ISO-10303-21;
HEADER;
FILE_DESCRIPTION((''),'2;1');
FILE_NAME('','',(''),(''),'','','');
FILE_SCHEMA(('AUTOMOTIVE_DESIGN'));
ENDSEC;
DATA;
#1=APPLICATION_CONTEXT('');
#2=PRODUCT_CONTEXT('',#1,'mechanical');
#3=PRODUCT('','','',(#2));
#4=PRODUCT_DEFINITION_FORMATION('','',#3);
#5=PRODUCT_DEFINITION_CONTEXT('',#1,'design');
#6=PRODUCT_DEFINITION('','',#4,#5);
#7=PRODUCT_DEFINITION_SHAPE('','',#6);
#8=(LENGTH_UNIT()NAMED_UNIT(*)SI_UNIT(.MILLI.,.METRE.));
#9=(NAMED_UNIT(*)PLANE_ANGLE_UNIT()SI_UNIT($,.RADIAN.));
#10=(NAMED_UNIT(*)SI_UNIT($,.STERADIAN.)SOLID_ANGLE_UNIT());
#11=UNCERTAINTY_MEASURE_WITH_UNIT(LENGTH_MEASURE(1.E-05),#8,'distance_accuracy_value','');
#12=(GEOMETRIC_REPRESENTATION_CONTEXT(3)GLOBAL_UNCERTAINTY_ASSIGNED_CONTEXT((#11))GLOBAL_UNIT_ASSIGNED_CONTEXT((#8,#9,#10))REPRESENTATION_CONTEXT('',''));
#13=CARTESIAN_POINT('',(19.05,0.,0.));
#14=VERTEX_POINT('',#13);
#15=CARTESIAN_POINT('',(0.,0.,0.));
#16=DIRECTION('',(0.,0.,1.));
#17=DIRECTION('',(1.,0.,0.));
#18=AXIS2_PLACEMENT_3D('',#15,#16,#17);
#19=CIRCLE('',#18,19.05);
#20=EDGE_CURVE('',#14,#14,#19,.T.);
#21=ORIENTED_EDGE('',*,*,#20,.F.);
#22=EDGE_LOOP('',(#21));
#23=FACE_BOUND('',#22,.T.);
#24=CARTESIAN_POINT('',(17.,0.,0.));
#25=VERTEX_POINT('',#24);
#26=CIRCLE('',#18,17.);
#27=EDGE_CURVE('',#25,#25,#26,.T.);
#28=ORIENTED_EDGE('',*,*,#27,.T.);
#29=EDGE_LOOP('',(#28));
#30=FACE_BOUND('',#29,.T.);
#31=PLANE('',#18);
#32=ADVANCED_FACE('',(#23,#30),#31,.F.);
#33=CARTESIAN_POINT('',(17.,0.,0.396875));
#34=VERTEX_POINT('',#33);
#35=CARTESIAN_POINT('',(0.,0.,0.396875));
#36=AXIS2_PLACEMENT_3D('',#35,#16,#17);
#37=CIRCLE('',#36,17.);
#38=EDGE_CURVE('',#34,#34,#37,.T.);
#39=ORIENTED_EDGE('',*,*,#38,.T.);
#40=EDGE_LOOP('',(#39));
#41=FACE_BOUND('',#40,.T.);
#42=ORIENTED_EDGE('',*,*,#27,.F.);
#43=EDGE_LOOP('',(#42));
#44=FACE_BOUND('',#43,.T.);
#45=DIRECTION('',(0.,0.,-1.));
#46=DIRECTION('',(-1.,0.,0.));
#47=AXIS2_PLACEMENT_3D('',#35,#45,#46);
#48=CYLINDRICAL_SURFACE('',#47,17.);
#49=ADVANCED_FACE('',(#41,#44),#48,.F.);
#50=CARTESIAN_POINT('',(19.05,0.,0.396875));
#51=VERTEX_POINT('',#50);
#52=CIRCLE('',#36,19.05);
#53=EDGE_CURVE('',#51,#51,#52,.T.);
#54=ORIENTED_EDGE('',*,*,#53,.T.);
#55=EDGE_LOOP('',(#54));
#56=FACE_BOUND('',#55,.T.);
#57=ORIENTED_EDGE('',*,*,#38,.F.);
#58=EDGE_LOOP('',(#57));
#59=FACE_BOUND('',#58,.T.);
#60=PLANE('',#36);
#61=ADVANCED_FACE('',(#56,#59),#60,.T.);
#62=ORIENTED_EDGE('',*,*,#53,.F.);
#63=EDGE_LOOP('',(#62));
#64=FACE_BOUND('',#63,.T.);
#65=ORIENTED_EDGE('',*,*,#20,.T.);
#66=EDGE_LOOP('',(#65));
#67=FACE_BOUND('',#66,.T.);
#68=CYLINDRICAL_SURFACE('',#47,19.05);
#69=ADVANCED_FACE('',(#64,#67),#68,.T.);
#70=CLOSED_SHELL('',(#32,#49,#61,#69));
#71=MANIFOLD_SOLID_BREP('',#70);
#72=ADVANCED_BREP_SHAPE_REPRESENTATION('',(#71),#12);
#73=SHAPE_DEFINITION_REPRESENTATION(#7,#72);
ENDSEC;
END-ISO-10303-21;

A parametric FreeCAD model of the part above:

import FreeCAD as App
import Part
import Sketcher
from FreeCAD import Vector
Q = App.Units.Quantity

doc = App.newDocument("Part")
body = doc.addObject("PartDesign::Body", "Body")

sketch1 = body.newObject("Sketcher::SketchObject", "Sketch")
sketch1.AttachmentSupport = (doc.getObject("XY_Plane"), [""])
sketch1.MapMode = "FlatFace"
sketch1.addGeometry(Part.Circle(Vector(0, 0, 0), Vector(0, 0, 1), 19.05), False)
sketch1.addGeometry(Part.Circle(Vector(0, 0, 0), Vector(0, 0, 1), 17), False)
sketch1.addConstraint(Sketcher.Constraint("Coincident", 0, 3, -1, 1))
sketch1.addConstraint(Sketcher.Constraint("Coincident", 1, 3, -1, 1))
sketch1.addConstraint(Sketcher.Constraint("Diameter", 0, Q("1.5 in")))
sketch1.addConstraint(Sketcher.Constraint("Diameter", 1, 34.0))
pad1 = body.newObject("PartDesign::Pad", "Pad")
pad1.Profile = sketch1
pad1.Length = Q("0.015625 in")

doc.recompute()
